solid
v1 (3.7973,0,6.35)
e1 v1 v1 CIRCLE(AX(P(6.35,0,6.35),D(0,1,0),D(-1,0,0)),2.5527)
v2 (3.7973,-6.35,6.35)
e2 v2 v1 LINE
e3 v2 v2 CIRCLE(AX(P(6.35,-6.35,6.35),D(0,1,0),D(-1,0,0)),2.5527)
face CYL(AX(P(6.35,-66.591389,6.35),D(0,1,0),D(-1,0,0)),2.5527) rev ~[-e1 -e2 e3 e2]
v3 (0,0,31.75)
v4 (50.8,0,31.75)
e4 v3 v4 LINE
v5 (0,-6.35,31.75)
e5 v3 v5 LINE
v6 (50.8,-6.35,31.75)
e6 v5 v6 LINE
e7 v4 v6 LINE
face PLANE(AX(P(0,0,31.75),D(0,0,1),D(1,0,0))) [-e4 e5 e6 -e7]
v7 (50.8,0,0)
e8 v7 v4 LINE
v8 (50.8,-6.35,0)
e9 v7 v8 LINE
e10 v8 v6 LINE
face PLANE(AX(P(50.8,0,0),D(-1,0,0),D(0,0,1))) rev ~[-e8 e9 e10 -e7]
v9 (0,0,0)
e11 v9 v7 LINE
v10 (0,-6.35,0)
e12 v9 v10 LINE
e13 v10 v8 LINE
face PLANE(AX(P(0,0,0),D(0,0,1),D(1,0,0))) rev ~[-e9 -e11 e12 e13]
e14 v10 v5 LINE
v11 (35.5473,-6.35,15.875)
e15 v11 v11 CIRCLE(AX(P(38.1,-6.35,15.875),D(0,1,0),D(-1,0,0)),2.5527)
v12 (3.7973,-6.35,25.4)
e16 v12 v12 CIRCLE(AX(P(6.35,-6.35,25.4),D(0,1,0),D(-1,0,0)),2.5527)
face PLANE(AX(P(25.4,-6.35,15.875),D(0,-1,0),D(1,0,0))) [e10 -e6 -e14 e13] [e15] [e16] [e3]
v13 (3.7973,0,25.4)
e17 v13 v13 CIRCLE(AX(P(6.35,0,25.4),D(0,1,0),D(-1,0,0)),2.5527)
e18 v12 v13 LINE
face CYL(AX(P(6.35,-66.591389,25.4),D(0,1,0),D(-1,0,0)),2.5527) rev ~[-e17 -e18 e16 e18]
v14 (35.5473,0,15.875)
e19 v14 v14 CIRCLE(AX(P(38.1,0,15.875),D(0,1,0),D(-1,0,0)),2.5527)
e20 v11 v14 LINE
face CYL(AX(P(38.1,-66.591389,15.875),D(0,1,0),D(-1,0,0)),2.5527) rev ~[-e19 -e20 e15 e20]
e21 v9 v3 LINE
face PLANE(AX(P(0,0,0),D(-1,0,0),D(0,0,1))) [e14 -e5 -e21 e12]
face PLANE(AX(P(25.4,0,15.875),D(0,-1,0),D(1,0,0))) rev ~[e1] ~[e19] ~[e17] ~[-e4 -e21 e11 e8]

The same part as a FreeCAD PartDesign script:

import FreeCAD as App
import Part
import Sketcher

V = App.Vector
Q = App.Units.Quantity

doc = App.newDocument("Part")
body = doc.addObject("PartDesign::Body", "Body")

# Sketch on XZ plane
sketch1 = body.newObject("Sketcher::SketchObject", "Sketch")
sketch1.AttachmentSupport = (doc.getObject("XZ_Plane"), [""])
sketch1.MapMode = "FlatFace"
sketch1.addGeometry(Part.LineSegment(V(0, 32, 0), V(0, 0, 0)), False)
sketch1.addGeometry(Part.LineSegment(V(0, 0, 0), V(51, 0, 0)), False)
sketch1.addGeometry(Part.LineSegment(V(51, 0, 0), V(51, 32, 0)), False)
sketch1.addGeometry(Part.LineSegment(V(51, 32, 0), V(0, 32, 0)), False)
sketch1.addConstraint(Sketcher.Constraint("Coincident", 0, 2, 1, 1))
sketch1.addConstraint(Sketcher.Constraint("Coincident", 1, 2, 2, 1))
sketch1.addConstraint(Sketcher.Constraint("Coincident", 2, 2, 3, 1))
sketch1.addConstraint(Sketcher.Constraint("Coincident", 3, 2, 0, 1))
sketch1.addConstraint(Sketcher.Constraint("Vertical", 0))
sketch1.addConstraint(Sketcher.Constraint("Horizontal", 1))
sketch1.addConstraint(Sketcher.Constraint("Vertical", 2))
sketch1.addConstraint(Sketcher.Constraint("Horizontal", 3))
sketch1.addConstraint(Sketcher.Constraint("Coincident", 0, 2, -1, 1))
sketch1.addConstraint(Sketcher.Constraint("DistanceX", 1, 1, 1, 2, Q("2 in")))
sketch1.addConstraint(Sketcher.Constraint("DistanceY", 0, 2, 0, 1, Q("1.25 in")))
pad1 = body.newObject("PartDesign::Pad", "Pad")
pad1.Profile = sketch1
pad1.Length = Q("0.25 in")

# Sketch on XZ plane
sketch2 = body.newObject("Sketcher::SketchObject", "Sketch001")
sketch2.AttachmentSupport = (doc.getObject("XZ_Plane"), [""])
sketch2.MapMode = "FlatFace"
sketch2.AttachmentOffset = App.Placement(V(0, 0, 0.25 * 25.4), App.Rotation())
sketch2.addGeometry(Part.Circle(V(6.3, 25.4, 0), V(0, 0, 1), 2.6), False)
sketch2.addGeometry(Part.Circle(V(6.3, 6.3, 0), V(0, 0, 1), 2.6), False)
sketch2.addGeometry(Part.Circle(V(38.1, 15.9, 0), V(0, 0, 1), 2.6), False)
sketch2.addConstraint(Sketcher.Constraint("Equal", 0, 1))
sketch2.addConstraint(Sketcher.Constraint("Equal", 1, 2))
sketch2.addConstraint(Sketcher.Constraint("Vertical", 0, 3, 1, 3))
sketch2.addConstraint(Sketcher.Constraint("Diameter", 0, Q("0.201 in")))
sketch2.addConstraint(Sketcher.Constraint("DistanceY", -1, 1, 0, 3, Q("1 in")))
sketch2.addConstraint(Sketcher.Constraint("DistanceX", -1, 1, 2, 3, Q("1.5 in")))
sketch2.addConstraint(Sketcher.Constraint("DistanceX", -1, 1, 0, 3, Q("0.25 in")))
sketch2.addConstraint(Sketcher.Constraint("DistanceY", -1, 1, 1, 3, Q("0.25 in")))
sketch2.addConstraint(Sketcher.Constraint("DistanceY", -1, 1, 2, 3, Q("0.625 in")))
doc.recompute()
hole = body.newObject("PartDesign::Hole", "Hole")
hole.Profile = sketch2
hole.ThreadType = "None"
hole.Diameter = Q("0.201 in")
hole.DepthType = "ThroughAll"

doc.recompute()
